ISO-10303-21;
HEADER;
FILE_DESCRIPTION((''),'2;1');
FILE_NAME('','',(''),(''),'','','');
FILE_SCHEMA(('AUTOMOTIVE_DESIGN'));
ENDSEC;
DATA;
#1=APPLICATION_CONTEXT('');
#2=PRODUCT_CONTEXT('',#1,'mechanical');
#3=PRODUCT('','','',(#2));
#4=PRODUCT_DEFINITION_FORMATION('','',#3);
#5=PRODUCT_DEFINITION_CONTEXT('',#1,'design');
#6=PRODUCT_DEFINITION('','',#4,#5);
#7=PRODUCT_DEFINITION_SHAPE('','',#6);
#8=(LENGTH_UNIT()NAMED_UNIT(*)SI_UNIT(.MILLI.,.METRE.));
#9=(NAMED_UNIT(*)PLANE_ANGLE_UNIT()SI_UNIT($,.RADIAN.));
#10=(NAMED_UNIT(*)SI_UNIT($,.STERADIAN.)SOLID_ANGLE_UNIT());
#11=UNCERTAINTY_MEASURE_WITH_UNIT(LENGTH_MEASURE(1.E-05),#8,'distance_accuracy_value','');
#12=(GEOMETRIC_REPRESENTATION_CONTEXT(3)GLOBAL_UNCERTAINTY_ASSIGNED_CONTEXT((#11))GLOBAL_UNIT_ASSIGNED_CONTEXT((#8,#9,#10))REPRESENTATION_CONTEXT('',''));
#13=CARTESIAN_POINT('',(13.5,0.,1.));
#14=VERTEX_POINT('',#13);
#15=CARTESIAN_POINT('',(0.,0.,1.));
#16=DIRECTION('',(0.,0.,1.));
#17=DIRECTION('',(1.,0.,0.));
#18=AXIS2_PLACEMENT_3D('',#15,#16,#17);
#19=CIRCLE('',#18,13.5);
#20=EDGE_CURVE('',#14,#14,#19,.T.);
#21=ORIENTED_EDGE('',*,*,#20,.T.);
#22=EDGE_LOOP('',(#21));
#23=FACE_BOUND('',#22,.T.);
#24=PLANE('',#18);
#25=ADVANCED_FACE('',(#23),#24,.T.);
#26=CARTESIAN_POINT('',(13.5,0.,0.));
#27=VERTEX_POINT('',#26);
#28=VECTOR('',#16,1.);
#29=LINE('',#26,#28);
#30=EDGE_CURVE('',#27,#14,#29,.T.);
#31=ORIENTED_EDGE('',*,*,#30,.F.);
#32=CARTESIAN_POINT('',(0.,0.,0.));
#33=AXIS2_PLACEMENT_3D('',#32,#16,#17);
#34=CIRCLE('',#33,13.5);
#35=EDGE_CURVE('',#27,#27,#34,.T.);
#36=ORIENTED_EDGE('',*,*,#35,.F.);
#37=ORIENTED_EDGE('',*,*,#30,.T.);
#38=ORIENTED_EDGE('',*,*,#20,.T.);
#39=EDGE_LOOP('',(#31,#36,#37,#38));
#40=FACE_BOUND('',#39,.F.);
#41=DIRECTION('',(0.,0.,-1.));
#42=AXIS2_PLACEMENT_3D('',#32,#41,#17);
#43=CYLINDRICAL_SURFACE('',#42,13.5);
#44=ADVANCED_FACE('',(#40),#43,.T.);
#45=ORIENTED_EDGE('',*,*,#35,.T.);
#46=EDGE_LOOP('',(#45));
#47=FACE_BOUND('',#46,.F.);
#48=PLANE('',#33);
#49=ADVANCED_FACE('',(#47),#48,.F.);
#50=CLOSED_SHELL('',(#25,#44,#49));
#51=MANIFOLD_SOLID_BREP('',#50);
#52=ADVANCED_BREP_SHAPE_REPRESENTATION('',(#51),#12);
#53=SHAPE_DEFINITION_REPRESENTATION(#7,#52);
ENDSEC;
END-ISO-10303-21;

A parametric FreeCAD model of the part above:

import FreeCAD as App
import Part
import Sketcher

V = App.Vector
Q = App.Units.Quantity

doc = App.newDocument("Part")
body = doc.addObject("PartDesign::Body", "Body")

sketch1 = doc.addObject("Sketcher::SketchObject", "Sketch")
body.addObject(sketch1)
sketch1.AttachmentSupport = (doc.XY_Plane, [""])
sketch1.MapMode = "FlatFace"
sketch1.addGeometry(Part.Circle(V(0, 0, 0), V(0, 0, 1), 14), False)
sketch1.addConstraint([
    Sketcher.Constraint("Coincident", 0, 3, -1, 1),
    Sketcher.Constraint("Diameter", 0, Q("27 mm")),
])
pad1 = doc.addObject("PartDesign::Pad", "Pad")
body.addObject(pad1)
pad1.Profile = sketch1
pad1.Length = 1

doc.recompute()
